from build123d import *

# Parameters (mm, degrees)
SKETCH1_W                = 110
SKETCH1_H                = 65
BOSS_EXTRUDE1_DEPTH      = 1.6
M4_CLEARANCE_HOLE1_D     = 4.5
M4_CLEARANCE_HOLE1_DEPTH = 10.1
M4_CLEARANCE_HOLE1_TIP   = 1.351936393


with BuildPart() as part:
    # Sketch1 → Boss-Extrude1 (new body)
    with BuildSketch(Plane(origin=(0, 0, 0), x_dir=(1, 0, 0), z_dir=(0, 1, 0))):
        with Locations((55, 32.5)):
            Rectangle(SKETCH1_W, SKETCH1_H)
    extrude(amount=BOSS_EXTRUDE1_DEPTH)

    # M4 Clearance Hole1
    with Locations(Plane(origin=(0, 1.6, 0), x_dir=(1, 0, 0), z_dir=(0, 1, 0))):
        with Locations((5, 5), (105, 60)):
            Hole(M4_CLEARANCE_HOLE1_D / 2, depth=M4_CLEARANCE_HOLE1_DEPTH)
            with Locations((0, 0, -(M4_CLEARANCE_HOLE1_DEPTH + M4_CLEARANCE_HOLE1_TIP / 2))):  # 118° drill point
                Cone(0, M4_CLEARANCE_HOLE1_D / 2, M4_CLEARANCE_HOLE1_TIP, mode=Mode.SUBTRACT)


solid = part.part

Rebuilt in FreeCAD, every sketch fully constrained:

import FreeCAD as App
import Part
import Sketcher

V = App.Vector

doc = App.newDocument("Part")
params = doc.addObject("Spreadsheet::Sheet", "Params")
for row, (alias, value) in enumerate([
    ("sketch1_width", "110 mm"),
    ("sketch1_height", "65 mm"),
    ("pad1_length", "1.6 mm"),
    ("sketch2_diameter", "4.5 mm"),
    ("hole_diameter", "4.5 mm"),
    ("hole_depth", "10.1 mm"),
], start=1):
    params.set(f"A{row}", alias)
    params.set(f"B{row}", "=" + value)
    params.setAlias(f"B{row}", alias)

body = doc.addObject("PartDesign::Body", "Body")

# Sketch on XZ plane
sketch1 = body.newObject("Sketcher::SketchObject", "Sketch")
sketch1.AttachmentSupport = (doc.getObject("XZ_Plane"), [""])
sketch1.MapMode = "FlatFace"
sketch1.addGeometry(Part.LineSegment(V(0, -65, 0), V(0, 0, 0)), False)
sketch1.addGeometry(Part.LineSegment(V(0, 0, 0), V(110, 0, 0)), False)
sketch1.addGeometry(Part.LineSegment(V(110, 0, 0), V(110, -65, 0)), False)
sketch1.addGeometry(Part.LineSegment(V(110, -65, 0), V(0, -65, 0)), False)
sketch1.addConstraint(Sketcher.Constraint("Coincident", 0, 2, 1, 1))
sketch1.addConstraint(Sketcher.Constraint("Coincident", 1, 2, 2, 1))
sketch1.addConstraint(Sketcher.Constraint("Coincident", 2, 2, 3, 1))
sketch1.addConstraint(Sketcher.Constraint("Coincident", 3, 2, 0, 1))
sketch1.addConstraint(Sketcher.Constraint("Vertical", 0))
sketch1.addConstraint(Sketcher.Constraint("Horizontal", 1))
sketch1.addConstraint(Sketcher.Constraint("Vertical", 2))
sketch1.addConstraint(Sketcher.Constraint("Horizontal", 3))
sketch1.addConstraint(Sketcher.Constraint("Coincident", 0, 2, -1, 1))
sketch1.addConstraint(Sketcher.Constraint("DistanceX", 1, 1, 1, 2, 110.0))
sketch1.addConstraint(Sketcher.Constraint("DistanceY", 0, 1, 0, 2, 65.0))
sketch1.setExpression("Constraints[9]", "Params.sketch1_width")
sketch1.setExpression("Constraints[10]", "Params.sketch1_height")
pad1 = body.newObject("PartDesign::Pad", "Pad")
pad1.Profile = sketch1
pad1.setExpression("Length", "Params.pad1_length")
pad1.Reversed = True

# Sketch on XZ plane
sketch2 = body.newObject("Sketcher::SketchObject", "Sketch001")
sketch2.AttachmentSupport = (doc.getObject("XZ_Plane"), [""])
sketch2.MapMode = "FlatFace"
sketch2.AttachmentOffset = App.Placement(V(0, 0, -1.6), App.Rotation())
sketch2.addGeometry(Part.Circle(V(5, -5, 0), V(0, 0, 1), 2.2), False)
sketch2.addGeometry(Part.Circle(V(105, -60, 0), V(0, 0, 1), 2.2), False)
sketch2.addConstraint(Sketcher.Constraint("Equal", 0, 1))
sketch2.addConstraint(Sketcher.Constraint("Diameter", 0, 4.5))
sketch2.addConstraint(Sketcher.Constraint("DistanceX", -1, 1, 0, 3, 5.0))
sketch2.addConstraint(Sketcher.Constraint("DistanceY", 0, 3, -1, 1, 5.0))
sketch2.addConstraint(Sketcher.Constraint("DistanceX", -1, 1, 1, 3, 105.0))
sketch2.addConstraint(Sketcher.Constraint("DistanceY", 1, 3, -1, 1, 60.0))
sketch2.setExpression("Constraints[1]", "Params.sketch2_diameter")
doc.recompute()
hole = body.newObject("PartDesign::Hole", "Hole")
hole.Profile = sketch2
hole.ThreadType = "None"
hole.setExpression("Diameter", "Params.hole_diameter")
hole.DepthType = "Dimension"
hole.setExpression("Depth", "Params.hole_depth")
hole.DrillPoint = "Angled"
hole.DrillPointAngle = 118
hole.Reversed = True

doc.recompute()
